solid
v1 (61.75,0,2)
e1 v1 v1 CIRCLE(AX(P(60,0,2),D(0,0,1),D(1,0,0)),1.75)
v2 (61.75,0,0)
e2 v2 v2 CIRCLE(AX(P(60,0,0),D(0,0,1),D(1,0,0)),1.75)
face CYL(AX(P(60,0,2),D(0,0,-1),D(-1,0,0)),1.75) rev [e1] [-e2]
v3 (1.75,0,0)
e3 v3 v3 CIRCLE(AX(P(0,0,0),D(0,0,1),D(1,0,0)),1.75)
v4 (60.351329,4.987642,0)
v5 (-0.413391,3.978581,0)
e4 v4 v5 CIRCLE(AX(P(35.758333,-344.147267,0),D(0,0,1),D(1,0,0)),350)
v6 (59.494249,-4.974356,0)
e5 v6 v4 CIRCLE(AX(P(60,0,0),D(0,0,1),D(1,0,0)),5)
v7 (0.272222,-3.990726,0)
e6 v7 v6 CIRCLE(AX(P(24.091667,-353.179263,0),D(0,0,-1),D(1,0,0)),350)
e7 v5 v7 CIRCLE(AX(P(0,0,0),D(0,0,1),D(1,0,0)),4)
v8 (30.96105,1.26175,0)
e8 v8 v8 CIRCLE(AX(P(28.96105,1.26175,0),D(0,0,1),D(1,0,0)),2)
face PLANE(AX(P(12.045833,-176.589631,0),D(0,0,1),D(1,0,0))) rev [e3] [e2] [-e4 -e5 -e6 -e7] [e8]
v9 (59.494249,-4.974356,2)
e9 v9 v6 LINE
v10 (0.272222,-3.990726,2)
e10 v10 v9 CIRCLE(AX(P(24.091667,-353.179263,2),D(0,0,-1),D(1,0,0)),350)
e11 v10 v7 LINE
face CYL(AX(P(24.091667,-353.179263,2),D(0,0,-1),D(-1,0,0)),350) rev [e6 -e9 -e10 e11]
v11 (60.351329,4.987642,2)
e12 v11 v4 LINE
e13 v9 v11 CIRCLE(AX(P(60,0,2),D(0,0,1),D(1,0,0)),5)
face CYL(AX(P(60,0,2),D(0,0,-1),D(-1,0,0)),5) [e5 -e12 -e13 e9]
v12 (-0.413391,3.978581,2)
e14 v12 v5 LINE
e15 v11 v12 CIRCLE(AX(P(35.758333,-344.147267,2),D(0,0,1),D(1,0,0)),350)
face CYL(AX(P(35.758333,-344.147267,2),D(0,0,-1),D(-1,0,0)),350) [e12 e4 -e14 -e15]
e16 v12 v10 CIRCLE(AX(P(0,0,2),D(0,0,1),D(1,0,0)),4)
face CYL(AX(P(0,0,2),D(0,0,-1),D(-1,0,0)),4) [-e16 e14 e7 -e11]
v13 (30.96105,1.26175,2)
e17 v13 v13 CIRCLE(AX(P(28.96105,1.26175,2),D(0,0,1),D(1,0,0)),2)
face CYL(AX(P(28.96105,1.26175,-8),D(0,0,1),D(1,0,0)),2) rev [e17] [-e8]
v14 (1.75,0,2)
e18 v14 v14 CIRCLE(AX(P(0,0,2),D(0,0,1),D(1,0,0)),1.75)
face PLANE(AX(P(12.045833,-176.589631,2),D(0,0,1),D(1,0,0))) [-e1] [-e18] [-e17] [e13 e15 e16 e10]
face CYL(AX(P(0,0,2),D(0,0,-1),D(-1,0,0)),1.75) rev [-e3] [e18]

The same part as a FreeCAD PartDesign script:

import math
import FreeCAD as App
import Part
import Sketcher
from FreeCAD import Vector

doc = App.newDocument("Part")
body = doc.addObject("PartDesign::Body", "Body")

# Sketch on XY plane
sketch1 = body.newObject("Sketcher::SketchObject", "Sketch")
sketch1.AttachmentSupport = (doc.getObject("XY_Plane"), [""])
sketch1.MapMode = "FlatFace"
sketch1.addGeometry([
    Part.ArcOfCircle(Part.Circle(Vector(0, 0, 0), Vector(0, 0, 1), 4), math.radians(96), math.radians(274)),  # 0
    Part.ArcOfCircle(Part.Circle(Vector(24.1, -353.2, 0), Vector(0, 0, 1), 350), math.radians(84.19), math.radians(93.9)),  # 1
    Part.ArcOfCircle(Part.Circle(Vector(60, 0, 0), Vector(0, 0, 1), 5), math.radians(-96), math.radians(86)),  # 2
    Part.ArcOfCircle(Part.Circle(Vector(35.8, -344.1, 0), Vector(0, 0, 1), 350), math.radians(85.97), math.radians(95.93)),  # 3
    Part.Circle(Vector(0, 0, 0), Vector(0, 0, 1), 1.8),  # 4
    Part.Circle(Vector(60, 0, 0), Vector(0, 0, 1), 1.8),  # 5
], False)
sketch1.addConstraint([
    Sketcher.Constraint("Tangent", 0, 2, 1, 2),
    Sketcher.Constraint("Tangent", 1, 1, 2, 1),
    Sketcher.Constraint("Tangent", 2, 2, 3, 1),
    Sketcher.Constraint("Tangent", 3, 2, 0, 1),
    Sketcher.Constraint("Coincident", 0, 3, -1, 1),
    Sketcher.Constraint("Coincident", 4, 3, -1, 1),
    Sketcher.Constraint("Coincident", 5, 3, 2, 3),
    Sketcher.Constraint("Equal", 1, 3),
    Sketcher.Constraint("Equal", 4, 5),
    Sketcher.Constraint("PointOnObject", 2, 3, -1),
    Sketcher.Constraint("Radius", 0, 4.0),
    Sketcher.Constraint("Radius", 1, 350.0),
    Sketcher.Constraint("Radius", 2, 5.0),
    Sketcher.Constraint("Diameter", 4, 3.5),
    Sketcher.Constraint("DistanceX", -1, 1, 2, 3, 60.0),
])
pad1 = body.newObject("PartDesign::Pad", "Pad")
pad1.Profile = sketch1
pad1.Length = 2

# Sketch on XY plane
sketch2 = body.newObject("Sketcher::SketchObject", "Sketch001")
sketch2.AttachmentSupport = (doc.getObject("XY_Plane"), [""])
sketch2.MapMode = "FlatFace"
sketch2.AttachmentOffset = App.Placement(Vector(0, 0, 2), App.Rotation())
sketch2.addGeometry(Part.Circle(Vector(29, 1.3, 0), Vector(0, 0, 1), 2), False)
sketch2.addConstraint([
    Sketcher.Constraint("Diameter", 0, 4.0),
    Sketcher.Constraint("DistanceX", -1, 1, 0, 3, 28.96105),
    Sketcher.Constraint("DistanceY", -1, 1, 0, 3, 1.26175),
])
pocket1 = body.newObject("PartDesign::Pocket", "Pocket")
pocket1.Profile = sketch2
pocket1.Length = 10

doc.recompute()
